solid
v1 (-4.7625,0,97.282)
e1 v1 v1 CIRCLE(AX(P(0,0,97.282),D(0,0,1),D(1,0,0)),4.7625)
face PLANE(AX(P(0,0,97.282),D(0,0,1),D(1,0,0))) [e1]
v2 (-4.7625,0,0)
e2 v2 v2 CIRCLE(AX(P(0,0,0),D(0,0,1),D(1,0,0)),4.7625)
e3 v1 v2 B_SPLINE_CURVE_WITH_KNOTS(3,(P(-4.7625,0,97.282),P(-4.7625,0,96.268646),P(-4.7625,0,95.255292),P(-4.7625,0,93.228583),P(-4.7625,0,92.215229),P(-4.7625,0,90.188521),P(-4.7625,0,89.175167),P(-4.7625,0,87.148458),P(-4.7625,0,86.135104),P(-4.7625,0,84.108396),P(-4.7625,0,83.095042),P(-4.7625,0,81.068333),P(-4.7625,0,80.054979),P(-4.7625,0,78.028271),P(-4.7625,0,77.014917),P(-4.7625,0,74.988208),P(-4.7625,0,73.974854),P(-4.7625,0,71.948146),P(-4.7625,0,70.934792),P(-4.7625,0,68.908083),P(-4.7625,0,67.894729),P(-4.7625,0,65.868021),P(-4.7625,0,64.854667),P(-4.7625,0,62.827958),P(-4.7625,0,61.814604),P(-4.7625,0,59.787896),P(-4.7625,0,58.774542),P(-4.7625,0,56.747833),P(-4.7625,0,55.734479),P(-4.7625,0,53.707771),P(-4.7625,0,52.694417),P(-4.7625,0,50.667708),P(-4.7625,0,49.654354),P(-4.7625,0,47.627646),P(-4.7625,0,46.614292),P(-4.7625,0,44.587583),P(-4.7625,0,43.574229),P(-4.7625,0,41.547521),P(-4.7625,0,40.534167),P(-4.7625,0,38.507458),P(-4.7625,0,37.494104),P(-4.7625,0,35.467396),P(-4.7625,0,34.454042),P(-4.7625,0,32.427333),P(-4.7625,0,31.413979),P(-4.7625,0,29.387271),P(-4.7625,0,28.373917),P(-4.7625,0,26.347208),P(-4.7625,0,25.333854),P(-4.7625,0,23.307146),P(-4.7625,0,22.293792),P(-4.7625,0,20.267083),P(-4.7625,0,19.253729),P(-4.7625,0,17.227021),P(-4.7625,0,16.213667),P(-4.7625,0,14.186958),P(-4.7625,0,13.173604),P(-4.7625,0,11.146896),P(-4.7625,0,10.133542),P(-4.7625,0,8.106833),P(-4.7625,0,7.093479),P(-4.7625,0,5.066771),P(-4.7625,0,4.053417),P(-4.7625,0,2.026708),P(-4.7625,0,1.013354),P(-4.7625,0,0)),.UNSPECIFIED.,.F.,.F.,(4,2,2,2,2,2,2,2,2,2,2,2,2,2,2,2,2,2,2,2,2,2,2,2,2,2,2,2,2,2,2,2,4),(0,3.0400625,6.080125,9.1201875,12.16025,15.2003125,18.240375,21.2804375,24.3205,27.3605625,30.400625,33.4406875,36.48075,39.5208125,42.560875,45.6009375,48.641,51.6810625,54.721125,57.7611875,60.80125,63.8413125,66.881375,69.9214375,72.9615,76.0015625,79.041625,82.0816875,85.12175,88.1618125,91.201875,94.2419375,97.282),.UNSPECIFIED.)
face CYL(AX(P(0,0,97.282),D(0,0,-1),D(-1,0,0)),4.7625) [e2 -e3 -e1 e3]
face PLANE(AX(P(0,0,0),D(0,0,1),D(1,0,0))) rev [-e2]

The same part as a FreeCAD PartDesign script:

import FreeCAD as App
import Part
import Sketcher
from FreeCAD import Vector
Q = App.Units.Quantity

doc = App.newDocument("Part")
body = doc.addObject("PartDesign::Body", "Body")

# Sketch on XY plane
sketch1 = body.newObject("Sketcher::SketchObject", "Sketch")
sketch1.AttachmentSupport = (doc.getObject("XY_Plane"), [""])
sketch1.MapMode = "FlatFace"
sketch1.addGeometry(Part.Circle(Vector(0, 0, 0), Vector(0, 0, 1), 4.8), False)
sketch1.addConstraint(Sketcher.Constraint("Coincident", 0, 3, -1, 1))
sketch1.addConstraint(Sketcher.Constraint("Diameter", 0, Q("0.375 in")))
pad1 = body.newObject("PartDesign::Pad", "Pad")
pad1.Profile = sketch1
pad1.Length = Q("3.83 in")

doc.recompute()
